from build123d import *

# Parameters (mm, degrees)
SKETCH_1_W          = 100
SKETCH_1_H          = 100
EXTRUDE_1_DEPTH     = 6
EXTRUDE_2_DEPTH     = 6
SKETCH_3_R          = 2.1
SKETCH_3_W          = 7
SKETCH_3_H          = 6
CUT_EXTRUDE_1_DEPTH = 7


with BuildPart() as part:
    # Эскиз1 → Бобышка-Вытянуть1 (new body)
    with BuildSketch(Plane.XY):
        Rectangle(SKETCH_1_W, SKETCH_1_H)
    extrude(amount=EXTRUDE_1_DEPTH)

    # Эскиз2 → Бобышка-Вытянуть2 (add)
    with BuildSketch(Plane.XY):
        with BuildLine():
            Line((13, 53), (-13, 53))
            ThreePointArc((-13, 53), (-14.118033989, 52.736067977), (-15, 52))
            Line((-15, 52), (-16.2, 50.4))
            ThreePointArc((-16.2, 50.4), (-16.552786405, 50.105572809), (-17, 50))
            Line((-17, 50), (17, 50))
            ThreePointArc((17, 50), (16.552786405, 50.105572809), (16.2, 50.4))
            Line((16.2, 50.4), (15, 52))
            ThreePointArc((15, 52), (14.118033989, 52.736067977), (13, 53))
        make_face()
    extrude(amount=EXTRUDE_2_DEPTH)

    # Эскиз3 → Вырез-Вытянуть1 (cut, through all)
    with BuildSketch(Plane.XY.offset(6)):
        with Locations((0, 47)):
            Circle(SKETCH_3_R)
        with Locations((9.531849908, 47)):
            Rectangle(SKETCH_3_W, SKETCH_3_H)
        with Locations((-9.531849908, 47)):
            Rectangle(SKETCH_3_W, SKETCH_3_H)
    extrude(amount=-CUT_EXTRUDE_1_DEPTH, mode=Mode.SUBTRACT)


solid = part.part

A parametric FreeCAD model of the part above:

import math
import FreeCAD as App
import Part
import Sketcher

V = App.Vector


def add_polygon(sketch, points):
    """Adds a closed chain of lines whose ends are joined by coincident constraints."""
    first, n = sketch.GeometryCount, len(points)
    for a, b in zip(points, points[1:] + points[:1]):
        sketch.addGeometry(Part.LineSegment(App.Vector(*a, 0), App.Vector(*b, 0)), False)
    for i in range(n):
        sketch.addConstraint(Sketcher.Constraint("Coincident", first + i, 2, first + (i + 1) % n, 1))

doc = App.newDocument("Part")
body = doc.addObject("PartDesign::Body", "Body")

# Sketch on XY plane
sketch1 = doc.addObject("Sketcher::SketchObject", "Sketch")
body.addObject(sketch1)
sketch1.AttachmentSupport = (doc.XY_Plane, [""])
sketch1.MapMode = "FlatFace"
add_polygon(sketch1, [(-50, 50), (-50, -50), (50, -50), (50, 50)])  # lines 0-3
sketch1.addConstraint(Sketcher.Constraint("Vertical", 0))
sketch1.addConstraint(Sketcher.Constraint("Horizontal", 1))
sketch1.addConstraint(Sketcher.Constraint("Vertical", 2))
sketch1.addConstraint(Sketcher.Constraint("Horizontal", 3))
sketch1.addConstraint(Sketcher.Constraint("Symmetric", 0, 2, 2, 2, -1, 1))
sketch1.addConstraint(Sketcher.Constraint("Equal", 3, 0))
sketch1.addConstraint(Sketcher.Constraint("DistanceX", 1, 1, 1, 2, 100.0))
pad1 = doc.addObject("PartDesign::Pad", "Pad")
body.addObject(pad1)
pad1.Profile = sketch1
pad1.Length = 6

# Sketch on XY plane
sketch2 = doc.addObject("Sketcher::SketchObject", "Sketch001")
body.addObject(sketch2)
sketch2.AttachmentSupport = (doc.XY_Plane, [""])
sketch2.MapMode = "FlatFace"
sketch2.addGeometry(Part.LineSegment(V(13, 53, 0), V(-13, 53, 0)), False)
sketch2.addGeometry(Part.ArcOfCircle(Part.Circle(V(-13, 50.5, 0), V(0, 0, 1), 2.5), math.radians(90), math.radians(143)), False)
sketch2.addGeometry(Part.LineSegment(V(-15, 52, 0), V(-16.2, 50.4, 0)), False)
sketch2.addGeometry(Part.ArcOfCircle(Part.Circle(V(-17, 51, 0), V(0, 0, 1), 1), math.radians(-90), math.radians(-37)), False)
sketch2.addGeometry(Part.LineSegment(V(-17, 50, 0), V(17, 50, 0)), False)
sketch2.addGeometry(Part.ArcOfCircle(Part.Circle(V(17, 51, 0), V(0, 0, 1), 1), math.radians(-143), math.radians(-90)), False)
sketch2.addGeometry(Part.LineSegment(V(16.2, 50.4, 0), V(15, 52, 0)), False)
sketch2.addGeometry(Part.ArcOfCircle(Part.Circle(V(13, 50.5, 0), V(0, 0, 1), 2.5), math.radians(37), math.radians(90)), False)
sketch2.addConstraint(Sketcher.Constraint("Tangent", 0, 2, 1, 1))
sketch2.addConstraint(Sketcher.Constraint("Tangent", 1, 2, 2, 1))
sketch2.addConstraint(Sketcher.Constraint("Tangent", 2, 2, 3, 2))
sketch2.addConstraint(Sketcher.Constraint("Tangent", 3, 1, 4, 1))
sketch2.addConstraint(Sketcher.Constraint("Tangent", 4, 2, 5, 2))
sketch2.addConstraint(Sketcher.Constraint("Tangent", 5, 1, 6, 1))
sketch2.addConstraint(Sketcher.Constraint("Tangent", 6, 2, 7, 1))
sketch2.addConstraint(Sketcher.Constraint("Tangent", 7, 2, 0, 1))
sketch2.addConstraint(Sketcher.Constraint("Horizontal", 0))
sketch2.addConstraint(Sketcher.Constraint("Horizontal", 4))
sketch2.addConstraint(Sketcher.Constraint("Equal", 3, 5))
sketch2.addConstraint(Sketcher.Constraint("Equal", 1, 7))
sketch2.addConstraint(Sketcher.Constraint("Symmetric", 2, 2, 5, 1, -2))
sketch2.addConstraint(Sketcher.Constraint("Radius", 3, 1.0))
sketch2.addConstraint(Sketcher.Constraint("Radius", 1, 2.5))
sketch2.addConstraint(Sketcher.Constraint("DistanceX", 0, 2, 0, 1, 26.0))
sketch2.addConstraint(Sketcher.Constraint("DistanceX", 4, 1, 4, 2, 34.0))
sketch2.addConstraint(Sketcher.Constraint("Distance", 2, 2.0))
sketch2.addConstraint(Sketcher.Constraint("DistanceY", -1, 1, 3, 3, 51.0))
pad2 = doc.addObject("PartDesign::Pad", "Pad001")
body.addObject(pad2)
pad2.Profile = sketch2
pad2.Length = 6

# Sketch on XY plane
sketch3 = doc.addObject("Sketcher::SketchObject", "Sketch002")
body.addObject(sketch3)
sketch3.AttachmentSupport = (doc.XY_Plane, [""])
sketch3.MapMode = "FlatFace"
sketch3.AttachmentOffset = App.Placement(V(0, 0, 6), App.Rotation())
sketch3.addGeometry(Part.Circle(V(0, 47, 0), V(0, 0, 1), 2.1), False)  # 0
add_polygon(sketch3, [(6, 50), (6, 44), (13, 44), (13, 50)])  # lines 1-4
add_polygon(sketch3, [(-13, 50), (-13, 44), (-6, 44), (-6, 50)])  # lines 5-8
sketch3.addConstraint(Sketcher.Constraint("Vertical", 1))
sketch3.addConstraint(Sketcher.Constraint("Horizontal", 2))
sketch3.addConstraint(Sketcher.Constraint("Vertical", 3))
sketch3.addConstraint(Sketcher.Constraint("Horizontal", 4))
sketch3.addConstraint(Sketcher.Constraint("Vertical", 5))
sketch3.addConstraint(Sketcher.Constraint("Horizontal", 6))
sketch3.addConstraint(Sketcher.Constraint("Vertical", 7))
sketch3.addConstraint(Sketcher.Constraint("Horizontal", 8))
sketch3.addConstraint(Sketcher.Constraint("Symmetric", 2, 2, 5, 2, -2))
sketch3.addConstraint(Sketcher.Constraint("Symmetric", 4, 2, 7, 2, -2))
sketch3.addConstraint(Sketcher.Constraint("PointOnObject", 0, 3, -2))
sketch3.addConstraint(Sketcher.Constraint("Diameter", 0, 4.2))
sketch3.addConstraint(Sketcher.Constraint("DistanceX", 2, 1, 2, 2, 7.0))
sketch3.addConstraint(Sketcher.Constraint("DistanceY", 1, 2, 1, 1, 6.0))
sketch3.addConstraint(Sketcher.Constraint("DistanceY", -1, 1, 0, 3, 47.0))
sketch3.addConstraint(Sketcher.Constraint("DistanceY", -1, 1, 1, 2, 44.0))
sketch3.addConstraint(Sketcher.Constraint("DistanceX", 5, 2, 1, 2, 19.0637))
pocket1 = doc.addObject("PartDesign::Pocket", "Pocket")
body.addObject(pocket1)
pocket1.Profile = sketch3
pocket1.Type = "ThroughAll"

doc.recompute()
